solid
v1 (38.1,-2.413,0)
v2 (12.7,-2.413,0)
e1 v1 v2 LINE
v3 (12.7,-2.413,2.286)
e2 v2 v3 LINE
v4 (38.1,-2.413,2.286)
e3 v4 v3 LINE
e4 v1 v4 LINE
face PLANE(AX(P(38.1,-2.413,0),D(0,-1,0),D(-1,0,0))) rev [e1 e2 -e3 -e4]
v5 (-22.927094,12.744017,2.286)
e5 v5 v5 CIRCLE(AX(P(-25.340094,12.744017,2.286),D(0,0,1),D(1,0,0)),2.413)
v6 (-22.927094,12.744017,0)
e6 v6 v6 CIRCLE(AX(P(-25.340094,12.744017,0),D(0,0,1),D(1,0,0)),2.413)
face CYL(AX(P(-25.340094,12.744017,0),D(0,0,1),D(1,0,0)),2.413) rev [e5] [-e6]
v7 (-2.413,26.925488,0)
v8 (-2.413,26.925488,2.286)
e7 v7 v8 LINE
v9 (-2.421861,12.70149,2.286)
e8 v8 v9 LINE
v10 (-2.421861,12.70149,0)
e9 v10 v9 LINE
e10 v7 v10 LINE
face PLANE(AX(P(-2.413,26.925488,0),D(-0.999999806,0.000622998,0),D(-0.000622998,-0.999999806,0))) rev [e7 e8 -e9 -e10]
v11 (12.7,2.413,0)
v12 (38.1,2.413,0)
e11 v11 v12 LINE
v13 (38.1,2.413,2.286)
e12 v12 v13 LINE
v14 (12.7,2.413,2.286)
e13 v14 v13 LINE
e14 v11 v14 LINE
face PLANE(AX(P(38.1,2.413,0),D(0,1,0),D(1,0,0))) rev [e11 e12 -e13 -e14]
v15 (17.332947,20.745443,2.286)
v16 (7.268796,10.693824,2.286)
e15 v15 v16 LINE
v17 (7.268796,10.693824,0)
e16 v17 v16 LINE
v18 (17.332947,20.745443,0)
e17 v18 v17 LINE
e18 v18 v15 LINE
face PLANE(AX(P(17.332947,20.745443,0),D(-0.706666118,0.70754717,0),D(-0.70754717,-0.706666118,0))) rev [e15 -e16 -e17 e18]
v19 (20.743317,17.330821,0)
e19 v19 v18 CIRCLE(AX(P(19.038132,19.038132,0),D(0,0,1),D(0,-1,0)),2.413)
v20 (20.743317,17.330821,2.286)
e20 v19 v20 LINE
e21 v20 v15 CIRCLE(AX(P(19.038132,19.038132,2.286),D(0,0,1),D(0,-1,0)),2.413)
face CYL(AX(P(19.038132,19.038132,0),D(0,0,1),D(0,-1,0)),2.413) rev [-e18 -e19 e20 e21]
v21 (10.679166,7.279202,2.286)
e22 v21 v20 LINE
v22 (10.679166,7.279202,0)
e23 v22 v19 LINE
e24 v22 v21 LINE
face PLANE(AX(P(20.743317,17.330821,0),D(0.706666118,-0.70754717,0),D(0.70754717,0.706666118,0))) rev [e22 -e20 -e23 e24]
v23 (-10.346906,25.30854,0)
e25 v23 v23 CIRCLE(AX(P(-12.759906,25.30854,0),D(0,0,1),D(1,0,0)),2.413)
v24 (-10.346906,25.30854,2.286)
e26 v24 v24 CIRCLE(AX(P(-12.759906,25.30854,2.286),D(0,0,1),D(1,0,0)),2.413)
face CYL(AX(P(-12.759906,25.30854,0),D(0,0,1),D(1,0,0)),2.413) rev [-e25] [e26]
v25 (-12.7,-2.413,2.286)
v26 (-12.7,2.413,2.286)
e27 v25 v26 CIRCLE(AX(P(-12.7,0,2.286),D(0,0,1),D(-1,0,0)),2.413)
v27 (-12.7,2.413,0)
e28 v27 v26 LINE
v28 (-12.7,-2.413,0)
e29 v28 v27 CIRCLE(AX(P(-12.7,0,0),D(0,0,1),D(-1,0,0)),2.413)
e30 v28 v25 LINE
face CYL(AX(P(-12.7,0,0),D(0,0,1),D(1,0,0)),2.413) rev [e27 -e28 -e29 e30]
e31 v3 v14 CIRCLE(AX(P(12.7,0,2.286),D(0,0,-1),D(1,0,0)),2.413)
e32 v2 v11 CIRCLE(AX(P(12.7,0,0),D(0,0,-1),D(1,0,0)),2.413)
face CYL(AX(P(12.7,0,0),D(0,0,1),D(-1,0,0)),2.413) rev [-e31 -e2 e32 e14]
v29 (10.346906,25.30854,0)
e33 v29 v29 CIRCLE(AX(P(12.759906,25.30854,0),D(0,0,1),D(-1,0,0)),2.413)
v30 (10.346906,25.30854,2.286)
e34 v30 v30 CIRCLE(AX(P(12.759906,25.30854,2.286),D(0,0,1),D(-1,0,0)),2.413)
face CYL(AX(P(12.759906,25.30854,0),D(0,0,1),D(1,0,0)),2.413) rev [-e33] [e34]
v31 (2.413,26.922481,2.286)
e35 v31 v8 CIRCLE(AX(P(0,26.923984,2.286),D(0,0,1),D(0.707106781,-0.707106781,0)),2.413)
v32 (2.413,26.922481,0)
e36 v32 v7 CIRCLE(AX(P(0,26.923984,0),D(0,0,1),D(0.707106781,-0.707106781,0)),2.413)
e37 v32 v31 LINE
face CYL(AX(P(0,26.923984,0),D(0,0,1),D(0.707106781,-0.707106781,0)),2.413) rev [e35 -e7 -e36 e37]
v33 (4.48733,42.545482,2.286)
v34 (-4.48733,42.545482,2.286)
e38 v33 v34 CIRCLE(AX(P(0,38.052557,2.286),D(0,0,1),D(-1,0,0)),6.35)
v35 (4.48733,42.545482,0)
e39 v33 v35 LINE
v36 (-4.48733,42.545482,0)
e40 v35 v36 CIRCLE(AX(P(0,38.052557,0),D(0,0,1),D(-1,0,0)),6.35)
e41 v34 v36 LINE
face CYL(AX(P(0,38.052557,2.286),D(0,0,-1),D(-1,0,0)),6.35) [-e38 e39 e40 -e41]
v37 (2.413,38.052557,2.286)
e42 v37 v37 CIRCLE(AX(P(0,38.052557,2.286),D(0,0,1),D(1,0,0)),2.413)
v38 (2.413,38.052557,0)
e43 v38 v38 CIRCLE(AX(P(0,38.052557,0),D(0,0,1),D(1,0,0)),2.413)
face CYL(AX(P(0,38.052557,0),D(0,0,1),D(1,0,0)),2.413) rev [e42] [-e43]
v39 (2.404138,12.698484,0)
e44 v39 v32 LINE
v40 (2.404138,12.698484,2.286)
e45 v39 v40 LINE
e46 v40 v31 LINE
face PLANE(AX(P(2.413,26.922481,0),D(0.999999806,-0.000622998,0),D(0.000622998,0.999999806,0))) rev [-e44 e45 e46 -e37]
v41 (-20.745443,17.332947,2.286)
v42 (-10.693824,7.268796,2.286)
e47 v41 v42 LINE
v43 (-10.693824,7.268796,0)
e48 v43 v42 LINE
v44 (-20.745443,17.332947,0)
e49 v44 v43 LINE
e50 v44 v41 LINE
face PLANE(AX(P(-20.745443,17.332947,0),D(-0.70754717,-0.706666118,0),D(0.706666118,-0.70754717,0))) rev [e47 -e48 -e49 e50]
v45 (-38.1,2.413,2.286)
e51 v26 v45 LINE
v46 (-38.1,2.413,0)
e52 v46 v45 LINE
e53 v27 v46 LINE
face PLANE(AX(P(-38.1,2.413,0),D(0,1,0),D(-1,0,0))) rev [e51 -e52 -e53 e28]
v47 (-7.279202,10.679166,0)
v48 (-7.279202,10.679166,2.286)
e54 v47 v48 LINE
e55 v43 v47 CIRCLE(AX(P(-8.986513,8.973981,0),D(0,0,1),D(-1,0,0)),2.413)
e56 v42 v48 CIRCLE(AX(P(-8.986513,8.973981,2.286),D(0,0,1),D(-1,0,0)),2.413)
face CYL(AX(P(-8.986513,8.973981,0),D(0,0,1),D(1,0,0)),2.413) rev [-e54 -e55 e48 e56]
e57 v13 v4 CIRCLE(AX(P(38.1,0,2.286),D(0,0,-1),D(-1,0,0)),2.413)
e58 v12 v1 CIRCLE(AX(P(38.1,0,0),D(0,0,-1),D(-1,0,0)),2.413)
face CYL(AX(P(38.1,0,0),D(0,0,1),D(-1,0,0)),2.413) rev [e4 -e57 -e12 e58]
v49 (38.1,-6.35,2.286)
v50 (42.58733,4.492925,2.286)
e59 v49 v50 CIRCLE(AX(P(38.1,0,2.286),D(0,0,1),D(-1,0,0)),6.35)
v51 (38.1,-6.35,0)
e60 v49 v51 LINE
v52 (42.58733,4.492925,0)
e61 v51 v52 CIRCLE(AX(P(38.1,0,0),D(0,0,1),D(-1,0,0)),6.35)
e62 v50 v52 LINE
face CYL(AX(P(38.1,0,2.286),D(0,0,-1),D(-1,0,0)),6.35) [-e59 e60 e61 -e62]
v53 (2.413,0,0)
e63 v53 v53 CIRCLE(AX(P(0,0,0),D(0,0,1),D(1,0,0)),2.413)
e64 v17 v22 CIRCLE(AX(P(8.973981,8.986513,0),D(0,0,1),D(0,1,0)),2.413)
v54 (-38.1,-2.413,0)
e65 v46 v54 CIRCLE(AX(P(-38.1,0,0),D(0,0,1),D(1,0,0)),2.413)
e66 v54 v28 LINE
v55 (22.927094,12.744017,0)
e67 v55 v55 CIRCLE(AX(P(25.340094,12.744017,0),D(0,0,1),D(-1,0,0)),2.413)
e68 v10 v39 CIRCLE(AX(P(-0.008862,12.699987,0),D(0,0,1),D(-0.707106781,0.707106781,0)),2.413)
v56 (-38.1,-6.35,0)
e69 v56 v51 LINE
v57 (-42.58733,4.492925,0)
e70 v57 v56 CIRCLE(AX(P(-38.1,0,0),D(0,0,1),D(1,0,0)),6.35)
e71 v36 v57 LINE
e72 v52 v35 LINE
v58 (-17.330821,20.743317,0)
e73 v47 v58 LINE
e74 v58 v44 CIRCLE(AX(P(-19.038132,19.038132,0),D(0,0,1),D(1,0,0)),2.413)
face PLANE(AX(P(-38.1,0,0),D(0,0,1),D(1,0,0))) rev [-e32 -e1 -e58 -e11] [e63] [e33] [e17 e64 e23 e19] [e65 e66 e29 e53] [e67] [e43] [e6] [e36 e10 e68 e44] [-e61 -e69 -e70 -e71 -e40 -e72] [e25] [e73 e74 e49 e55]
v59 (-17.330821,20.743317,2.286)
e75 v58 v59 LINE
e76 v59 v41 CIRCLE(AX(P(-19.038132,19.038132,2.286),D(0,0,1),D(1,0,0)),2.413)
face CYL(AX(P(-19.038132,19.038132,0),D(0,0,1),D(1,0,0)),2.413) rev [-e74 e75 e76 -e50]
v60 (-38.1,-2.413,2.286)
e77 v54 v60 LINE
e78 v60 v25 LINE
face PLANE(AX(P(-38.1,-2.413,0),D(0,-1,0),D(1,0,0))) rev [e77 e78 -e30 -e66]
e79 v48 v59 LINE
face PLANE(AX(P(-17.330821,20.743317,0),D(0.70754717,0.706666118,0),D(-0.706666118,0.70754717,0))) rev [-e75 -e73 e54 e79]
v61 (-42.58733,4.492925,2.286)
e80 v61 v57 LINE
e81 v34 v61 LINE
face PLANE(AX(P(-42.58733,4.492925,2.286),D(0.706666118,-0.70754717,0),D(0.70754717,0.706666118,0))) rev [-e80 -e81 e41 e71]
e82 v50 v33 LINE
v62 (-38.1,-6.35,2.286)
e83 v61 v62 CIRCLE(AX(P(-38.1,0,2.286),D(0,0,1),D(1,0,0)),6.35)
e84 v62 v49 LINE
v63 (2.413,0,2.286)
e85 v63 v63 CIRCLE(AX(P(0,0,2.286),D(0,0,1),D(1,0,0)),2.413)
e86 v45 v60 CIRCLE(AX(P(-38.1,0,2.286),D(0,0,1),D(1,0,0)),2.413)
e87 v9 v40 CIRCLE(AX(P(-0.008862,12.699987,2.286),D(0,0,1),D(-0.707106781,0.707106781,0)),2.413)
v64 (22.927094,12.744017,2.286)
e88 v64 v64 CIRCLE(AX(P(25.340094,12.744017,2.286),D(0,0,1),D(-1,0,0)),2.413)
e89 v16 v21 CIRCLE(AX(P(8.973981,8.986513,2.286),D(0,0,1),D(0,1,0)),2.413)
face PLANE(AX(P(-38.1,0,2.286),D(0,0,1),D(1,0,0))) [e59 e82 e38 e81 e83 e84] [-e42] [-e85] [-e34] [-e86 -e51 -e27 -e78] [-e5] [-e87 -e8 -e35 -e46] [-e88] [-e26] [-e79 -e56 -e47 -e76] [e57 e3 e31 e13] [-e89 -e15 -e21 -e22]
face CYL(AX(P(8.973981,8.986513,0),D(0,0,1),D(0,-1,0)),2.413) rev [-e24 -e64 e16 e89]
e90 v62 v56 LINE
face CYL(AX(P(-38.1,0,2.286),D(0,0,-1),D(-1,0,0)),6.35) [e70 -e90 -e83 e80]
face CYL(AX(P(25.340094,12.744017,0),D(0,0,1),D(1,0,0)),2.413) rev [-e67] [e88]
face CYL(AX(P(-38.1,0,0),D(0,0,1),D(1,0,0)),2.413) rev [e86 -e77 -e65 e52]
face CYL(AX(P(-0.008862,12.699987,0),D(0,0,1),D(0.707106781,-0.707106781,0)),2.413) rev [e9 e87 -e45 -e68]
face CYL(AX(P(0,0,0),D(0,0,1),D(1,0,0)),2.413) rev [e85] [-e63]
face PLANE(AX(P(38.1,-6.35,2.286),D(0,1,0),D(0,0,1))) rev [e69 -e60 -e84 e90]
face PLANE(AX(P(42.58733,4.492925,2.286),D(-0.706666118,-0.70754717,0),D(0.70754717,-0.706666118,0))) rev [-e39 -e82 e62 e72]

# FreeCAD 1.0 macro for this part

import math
import FreeCAD as App
import Part
import Sketcher
from FreeCAD import Vector
Q = App.Units.Quantity

doc = App.newDocument("Part")
body = doc.addObject("PartDesign::Body", "Body")

# Sketch on XY plane
sketch1 = doc.addObject("Sketcher::SketchObject", "Sketch")
body.addObject(sketch1)
sketch1.AttachmentSupport = (doc.XY_Plane, [""])
sketch1.MapMode = "FlatFace"
sketch1.addGeometry([
    Part.LineSegment(Vector(-4, 43, 0), Vector(-43, 4, 0)),  # 0
    Part.ArcOfCircle(Part.Circle(Vector(-38, 0, 0), Vector(0, 0, 1), 6), math.radians(135), math.radians(270)),  # 1
    Part.LineSegment(Vector(-38, -6, 0), Vector(38, -6, 0)),  # 2
    Part.ArcOfCircle(Part.Circle(Vector(38, 0, 0), Vector(0, 0, 1), 6), math.radians(-90), math.radians(45)),  # 3
    Part.LineSegment(Vector(43, 4, 0), Vector(4, 43, 0)),  # 4
    Part.ArcOfCircle(Part.Circle(Vector(0, 38, 0), Vector(0, 0, 1), 6), math.radians(45), math.radians(135)),  # 5
], False)
sketch1.addConstraint([
    Sketcher.Constraint("Tangent", 0, 2, 1, 1),
    Sketcher.Constraint("Tangent", 1, 2, 2, 1),
    Sketcher.Constraint("Tangent", 2, 2, 3, 1),
    Sketcher.Constraint("Tangent", 3, 2, 4, 1),
    Sketcher.Constraint("Tangent", 4, 2, 5, 1),
    Sketcher.Constraint("Tangent", 5, 2, 0, 1),
    Sketcher.Constraint("Horizontal", 2),
    Sketcher.Constraint("Equal", 1, 3),
    Sketcher.Constraint("Equal", 3, 5),
    Sketcher.Constraint("Symmetric", 1, 3, 3, 3, -1, 1),
    Sketcher.Constraint("PointOnObject", 5, 3, -2),
    Sketcher.Constraint("DistanceX", 2, 1, 2, 2, Q("3 in")),
    Sketcher.Constraint("Radius", 1, Q("0.25 in")),
    Sketcher.Constraint("Distance", 0, Q("2.12 in")),
])
pad1 = doc.addObject("PartDesign::Pad", "Pad")
body.addObject(pad1)
pad1.Profile = sketch1
pad1.Length = Q("0.09 in")

# Sketch on XY plane
sketch2 = doc.addObject("Sketcher::SketchObject", "Sketch001")
body.addObject(sketch2)
sketch2.AttachmentSupport = (doc.XY_Plane, [""])
sketch2.MapMode = "FlatFace"
sketch2.AttachmentOffset = App.Placement(Vector(0, 0, 0.09 * 25.4), App.Rotation())
sketch2.addGeometry([
    Part.Circle(Vector(0, 0, 0), Vector(0, 0, 1), 2.4),  # 0
    Part.Circle(Vector(0, 38.1, 0), Vector(0, 0, 1), 2.4),  # 1
    Part.Circle(Vector(-25.3, 12.7, 0), Vector(0, 0, 1), 2.4),  # 2
    Part.Circle(Vector(25.3, 12.7, 0), Vector(0, 0, 1), 2.4),  # 3
    Part.Circle(Vector(-12.8, 25.3, 0), Vector(0, 0, 1), 2.4),  # 4
    Part.Circle(Vector(12.8, 25.3, 0), Vector(0, 0, 1), 2.4),  # 5
], False)
sketch2.addConstraint([
    Sketcher.Constraint("Coincident", 0, 3, -1, 1),
    Sketcher.Constraint("Equal", 0, 1),
    Sketcher.Constraint("Equal", 1, 2),
    Sketcher.Constraint("Equal", 2, 3),
    Sketcher.Constraint("Equal", 3, 4),
    Sketcher.Constraint("Equal", 4, 5),
    Sketcher.Constraint("Symmetric", 2, 3, 3, 3, -2),
    Sketcher.Constraint("Symmetric", 4, 3, 5, 3, -2),
    Sketcher.Constraint("PointOnObject", 1, 3, -2),
    Sketcher.Constraint("Diameter", 0, Q("0.19 in")),
    Sketcher.Constraint("DistanceX", 4, 3, 3, 3, Q("1.5 in")),
    Sketcher.Constraint("DistanceY", -1, 1, 4, 3, 25.30854),
    Sketcher.Constraint("DistanceY", 2, 3, 1, 3, 25.30854),
    Sketcher.Constraint("DistanceX", 2, 3, 3, 3, 50.680189),
    Sketcher.Constraint("DistanceY", -1, 1, 1, 3, 38.052557),
])
pocket1 = doc.addObject("PartDesign::Pocket", "Pocket")
body.addObject(pocket1)
pocket1.Profile = sketch2
pocket1.Type = "ThroughAll"

# Sketch on XY plane
sketch3 = doc.addObject("Sketcher::SketchObject", "Sketch002")
body.addObject(sketch3)
sketch3.AttachmentSupport = (doc.XY_Plane, [""])
sketch3.MapMode = "FlatFace"
sketch3.AttachmentOffset = App.Placement(Vector(0, 0, 0.09 * 25.4), App.Rotation())
sketch3.addGeometry([
    Part.LineSegment(Vector(-12.7, 2.4, 0), Vector(-38.1, 2.4, 0)),
    Part.ArcOfCircle(Part.Circle(Vector(-38.1, 0, 0), Vector(0, 0, 1), 2.4), math.radians(90), math.radians(270)),
    Part.LineSegment(Vector(-38.1, -2.4, 0), Vector(-12.7, -2.4, 0)),
    Part.ArcOfCircle(Part.Circle(Vector(-12.7, 0, 0), Vector(0, 0, 1), 2.4), math.radians(-90), math.radians(90)),
], False)
sketch3.addConstraint([
    Sketcher.Constraint("Tangent", 0, 2, 1, 1),
    Sketcher.Constraint("Tangent", 1, 2, 2, 1),
    Sketcher.Constraint("Tangent", 2, 2, 3, 1),
    Sketcher.Constraint("Tangent", 3, 2, 0, 1),
    Sketcher.Constraint("Horizontal", 0),
    Sketcher.Constraint("Horizontal", 2),
    Sketcher.Constraint("PointOnObject", 1, 3, -1),
    Sketcher.Constraint("DistanceX", 0, 2, 0, 1, Q("1 in")),
    Sketcher.Constraint("Radius", 1, Q("0.095 in")),
    Sketcher.Constraint("DistanceX", 1, 3, -1, 1, Q("1.5 in")),
])
pocket2 = doc.addObject("PartDesign::Pocket", "Pocket001")
body.addObject(pocket2)
pocket2.Profile = sketch3
pocket2.Type = "ThroughAll"
doc.recompute()

mirrored = doc.addObject("PartDesign::Mirrored", "Mirrored")
body.addObject(mirrored)
mirrored.Originals = [pocket2]
mirrored.MirrorPlane = (doc.YZ_Plane, [""])
body.Tip = mirrored

# Sketch on XY plane
sketch4 = doc.addObject("Sketcher::SketchObject", "Sketch003")
body.addObject(sketch4)
sketch4.AttachmentSupport = (doc.XY_Plane, [""])
sketch4.MapMode = "FlatFace"
sketch4.AttachmentOffset = App.Placement(Vector(0, 0, 0.09 * 25.4), App.Rotation())
sketch4.addGeometry([
    Part.LineSegment(Vector(-20.7, 17.3, 0), Vector(-10.7, 7.3, 0)),
    Part.ArcOfCircle(Part.Circle(Vector(-9, 9, 0), Vector(0, 0, 1), 2.4), math.radians(-135), math.radians(45)),
    Part.LineSegment(Vector(-7.3, 10.7, 0), Vector(-17.3, 20.7, 0)),
    Part.ArcOfCircle(Part.Circle(Vector(-19, 19, 0), Vector(0, 0, 1), 2.4), math.radians(45), math.radians(225)),
], False)
sketch4.addConstraint([
    Sketcher.Constraint("Tangent", 0, 2, 1, 1),
    Sketcher.Constraint("Tangent", 1, 2, 2, 1),
    Sketcher.Constraint("Tangent", 2, 2, 3, 1),
    Sketcher.Constraint("Tangent", 3, 2, 0, 1),
    Sketcher.Constraint("Equal", 1, 3),
    Sketcher.Constraint("Radius", 1, Q("0.095 in")),
    Sketcher.Constraint("Distance", 0, Q("0.56 in")),
    Sketcher.Constraint("DistanceX", 1, 2, -1, 1, 7.279202),
    Sketcher.Constraint("DistanceY", -1, 1, 1, 3, 8.973981),
    Sketcher.Constraint("DistanceX", 3, 3, -1, 1, 19.038132),
])
pocket3 = doc.addObject("PartDesign::Pocket", "Pocket002")
body.addObject(pocket3)
pocket3.Profile = sketch4
pocket3.Type = "ThroughAll"
doc.recompute()

polarpattern = doc.addObject("PartDesign::PolarPattern", "PolarPattern")
body.addObject(polarpattern)
polarpattern.Originals = [pocket3]
polarpattern.Axis = (doc.Z_Axis, [""])
polarpattern.Angle = 90
polarpattern.Occurrences = 3
polarpattern.Reversed = True
body.Tip = polarpattern

doc.recompute()
